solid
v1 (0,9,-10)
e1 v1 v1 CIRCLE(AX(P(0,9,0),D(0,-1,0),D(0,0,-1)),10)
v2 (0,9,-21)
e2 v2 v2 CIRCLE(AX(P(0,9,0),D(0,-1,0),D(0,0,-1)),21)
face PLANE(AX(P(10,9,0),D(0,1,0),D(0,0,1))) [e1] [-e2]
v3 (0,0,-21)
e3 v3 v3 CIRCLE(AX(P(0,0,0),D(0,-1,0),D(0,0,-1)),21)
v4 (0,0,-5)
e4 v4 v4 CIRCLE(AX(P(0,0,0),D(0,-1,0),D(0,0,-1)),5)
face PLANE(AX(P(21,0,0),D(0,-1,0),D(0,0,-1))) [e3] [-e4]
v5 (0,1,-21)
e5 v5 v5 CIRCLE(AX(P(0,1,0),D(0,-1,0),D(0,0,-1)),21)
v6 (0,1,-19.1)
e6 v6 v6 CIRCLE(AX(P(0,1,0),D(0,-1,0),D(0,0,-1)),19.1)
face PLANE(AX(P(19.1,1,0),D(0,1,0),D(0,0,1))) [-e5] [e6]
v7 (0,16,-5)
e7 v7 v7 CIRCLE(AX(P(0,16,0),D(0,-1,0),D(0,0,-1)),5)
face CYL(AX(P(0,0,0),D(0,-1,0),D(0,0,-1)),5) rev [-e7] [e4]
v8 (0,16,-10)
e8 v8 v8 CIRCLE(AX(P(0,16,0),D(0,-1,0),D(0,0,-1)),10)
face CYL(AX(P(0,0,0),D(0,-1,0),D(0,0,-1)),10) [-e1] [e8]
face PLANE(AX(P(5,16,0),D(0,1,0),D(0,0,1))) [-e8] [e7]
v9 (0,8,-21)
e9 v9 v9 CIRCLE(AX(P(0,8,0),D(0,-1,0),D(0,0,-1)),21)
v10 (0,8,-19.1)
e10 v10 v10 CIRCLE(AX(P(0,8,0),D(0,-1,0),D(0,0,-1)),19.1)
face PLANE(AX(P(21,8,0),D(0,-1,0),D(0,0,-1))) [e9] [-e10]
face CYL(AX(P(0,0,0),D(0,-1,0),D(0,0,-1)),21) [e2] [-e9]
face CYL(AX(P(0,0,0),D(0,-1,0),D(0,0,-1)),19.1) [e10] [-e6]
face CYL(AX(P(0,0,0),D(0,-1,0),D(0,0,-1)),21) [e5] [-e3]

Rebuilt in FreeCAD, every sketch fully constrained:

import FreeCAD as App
import Part
import Sketcher


def add_polygon(sketch, points):
    """Adds a closed chain of lines whose ends are joined by coincident constraints."""
    first, n = sketch.GeometryCount, len(points)
    for a, b in zip(points, points[1:] + points[:1]):
        sketch.addGeometry(Part.LineSegment(App.Vector(*a, 0), App.Vector(*b, 0)), False)
    for i in range(n):
        sketch.addConstraint(Sketcher.Constraint("Coincident", first + i, 2, first + (i + 1) % n, 1))

doc = App.newDocument("Part")
body = doc.addObject("PartDesign::Body", "Body")

# Sketch on XY plane
sketch1 = body.newObject("Sketcher::SketchObject", "Sketch")
sketch1.AttachmentSupport = (doc.getObject("XY_Plane"), [""])
sketch1.MapMode = "FlatFace"
add_polygon(sketch1, [(10, 16), (5, 16), (5, 0), (21, 0), (21, 1), (19.1, 1), (19.1, 8), (21, 8), (21, 9), (10, 9)])  # lines 0-9
sketch1.addConstraint(Sketcher.Constraint("Horizontal", 0))
sketch1.addConstraint(Sketcher.Constraint("Vertical", 1))
sketch1.addConstraint(Sketcher.Constraint("Horizontal", 2))
sketch1.addConstraint(Sketcher.Constraint("Vertical", 3))
sketch1.addConstraint(Sketcher.Constraint("Horizontal", 4))
sketch1.addConstraint(Sketcher.Constraint("Vertical", 5))
sketch1.addConstraint(Sketcher.Constraint("Horizontal", 6))
sketch1.addConstraint(Sketcher.Constraint("Vertical", 7))
sketch1.addConstraint(Sketcher.Constraint("Horizontal", 8))
sketch1.addConstraint(Sketcher.Constraint("Vertical", 9))
sketch1.addConstraint(Sketcher.Constraint("PointOnObject", 1, 2, -1))
sketch1.addConstraint(Sketcher.Constraint("Vertical", 3, 2, 6, 2))
sketch1.addConstraint(Sketcher.Constraint("Equal", 2, 1))
sketch1.addConstraint(Sketcher.Constraint("Equal", 3, 7))
sketch1.addConstraint(Sketcher.Constraint("Equal", 5, 9))
sketch1.addConstraint(Sketcher.Constraint("DistanceX", 0, 2, 0, 1, 5.0))
sketch1.addConstraint(Sketcher.Constraint("DistanceX", 2, 1, 2, 2, 16.0))
sketch1.addConstraint(Sketcher.Constraint("DistanceY", 3, 1, 3, 2, 1.0))
sketch1.addConstraint(Sketcher.Constraint("DistanceX", 4, 2, 4, 1, 1.9))
sketch1.addConstraint(Sketcher.Constraint("DistanceX", -1, 1, 0, 2, 5.0))
revolution = body.newObject("PartDesign::Revolution", "Revolution")
revolution.Profile = sketch1
revolution.ReferenceAxis = (sketch1, ["V_Axis"])
revolution.Angle = 360

doc.recompute()
